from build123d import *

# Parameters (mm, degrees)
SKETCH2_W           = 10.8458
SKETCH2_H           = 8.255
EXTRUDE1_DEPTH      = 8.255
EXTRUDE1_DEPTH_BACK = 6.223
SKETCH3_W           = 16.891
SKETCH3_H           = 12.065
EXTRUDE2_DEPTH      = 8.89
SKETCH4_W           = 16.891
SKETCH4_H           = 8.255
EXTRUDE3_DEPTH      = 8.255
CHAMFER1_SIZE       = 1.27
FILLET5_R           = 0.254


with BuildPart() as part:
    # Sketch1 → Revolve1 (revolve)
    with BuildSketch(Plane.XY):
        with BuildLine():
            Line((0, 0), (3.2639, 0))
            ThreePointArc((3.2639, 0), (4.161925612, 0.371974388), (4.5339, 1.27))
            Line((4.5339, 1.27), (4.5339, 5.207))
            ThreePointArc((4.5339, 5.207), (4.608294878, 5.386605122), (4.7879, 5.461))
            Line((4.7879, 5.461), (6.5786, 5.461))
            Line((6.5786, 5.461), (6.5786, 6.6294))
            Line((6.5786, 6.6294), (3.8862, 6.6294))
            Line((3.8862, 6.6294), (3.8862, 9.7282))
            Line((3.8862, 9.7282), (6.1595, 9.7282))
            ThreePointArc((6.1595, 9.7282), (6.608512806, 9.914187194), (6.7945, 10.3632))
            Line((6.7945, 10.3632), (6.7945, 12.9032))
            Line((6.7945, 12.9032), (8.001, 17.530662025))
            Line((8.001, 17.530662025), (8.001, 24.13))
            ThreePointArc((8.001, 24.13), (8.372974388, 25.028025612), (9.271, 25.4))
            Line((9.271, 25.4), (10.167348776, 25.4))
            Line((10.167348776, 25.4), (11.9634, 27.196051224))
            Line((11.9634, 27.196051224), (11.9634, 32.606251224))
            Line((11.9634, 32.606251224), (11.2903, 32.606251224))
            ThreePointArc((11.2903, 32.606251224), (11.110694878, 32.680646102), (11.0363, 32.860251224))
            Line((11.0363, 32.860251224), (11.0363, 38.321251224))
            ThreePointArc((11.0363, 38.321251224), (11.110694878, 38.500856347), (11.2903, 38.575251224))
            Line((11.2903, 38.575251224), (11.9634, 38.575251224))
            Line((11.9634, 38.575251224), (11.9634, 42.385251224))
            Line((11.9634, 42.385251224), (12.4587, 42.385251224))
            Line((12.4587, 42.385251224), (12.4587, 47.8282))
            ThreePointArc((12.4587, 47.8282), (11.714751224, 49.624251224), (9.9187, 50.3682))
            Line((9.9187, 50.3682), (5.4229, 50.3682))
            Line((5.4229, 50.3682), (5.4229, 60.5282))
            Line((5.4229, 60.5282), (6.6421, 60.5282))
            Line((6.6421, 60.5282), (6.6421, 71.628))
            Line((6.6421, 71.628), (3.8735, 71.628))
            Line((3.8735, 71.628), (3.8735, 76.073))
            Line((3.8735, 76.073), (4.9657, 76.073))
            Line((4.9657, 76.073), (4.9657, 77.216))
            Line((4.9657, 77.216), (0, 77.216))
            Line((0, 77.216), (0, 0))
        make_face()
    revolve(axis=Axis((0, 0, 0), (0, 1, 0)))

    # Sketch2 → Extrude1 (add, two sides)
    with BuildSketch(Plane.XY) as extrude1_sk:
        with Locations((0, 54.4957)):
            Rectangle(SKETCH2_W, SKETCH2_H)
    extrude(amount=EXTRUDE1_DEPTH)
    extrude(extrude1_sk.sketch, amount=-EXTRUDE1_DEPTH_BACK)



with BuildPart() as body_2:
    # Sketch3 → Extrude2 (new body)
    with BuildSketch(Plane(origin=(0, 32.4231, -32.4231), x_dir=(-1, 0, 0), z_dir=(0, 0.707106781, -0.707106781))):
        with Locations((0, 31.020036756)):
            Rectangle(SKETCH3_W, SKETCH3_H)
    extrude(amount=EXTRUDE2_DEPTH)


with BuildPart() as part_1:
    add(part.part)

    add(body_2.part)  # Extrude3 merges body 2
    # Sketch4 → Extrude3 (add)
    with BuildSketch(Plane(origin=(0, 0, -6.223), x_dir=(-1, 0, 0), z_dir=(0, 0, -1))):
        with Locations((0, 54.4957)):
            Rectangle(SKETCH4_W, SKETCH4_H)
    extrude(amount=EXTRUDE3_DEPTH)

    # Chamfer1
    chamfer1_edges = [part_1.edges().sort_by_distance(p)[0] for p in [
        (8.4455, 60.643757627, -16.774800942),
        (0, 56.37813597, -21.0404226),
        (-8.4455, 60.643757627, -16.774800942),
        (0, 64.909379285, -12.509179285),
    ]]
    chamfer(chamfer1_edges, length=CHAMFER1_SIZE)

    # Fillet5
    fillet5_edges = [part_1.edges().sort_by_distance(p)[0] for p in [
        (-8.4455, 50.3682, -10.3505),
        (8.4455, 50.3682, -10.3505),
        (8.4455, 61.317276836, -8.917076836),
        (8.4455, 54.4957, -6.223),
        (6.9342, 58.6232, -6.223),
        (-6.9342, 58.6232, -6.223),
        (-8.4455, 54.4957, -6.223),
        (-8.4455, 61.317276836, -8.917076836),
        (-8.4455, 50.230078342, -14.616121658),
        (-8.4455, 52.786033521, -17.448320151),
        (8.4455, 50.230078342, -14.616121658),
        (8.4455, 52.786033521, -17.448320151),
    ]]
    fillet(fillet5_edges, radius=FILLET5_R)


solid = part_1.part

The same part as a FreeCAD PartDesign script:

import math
import FreeCAD as App
import Part
import Sketcher

V = App.Vector
Q = App.Units.Quantity


def edges_at(feature, points):
    """Names of the edges that pass closest to the given points."""
    edges = feature.Shape.Edges
    near = lambda p: min(range(len(edges)), key=lambda i: edges[i].distToShape(Part.Vertex(*p))[0])
    return sorted({f"Edge{near(p) + 1}" for p in points})


def add_polygon(sketch, points):
    """Adds a closed chain of lines whose ends are joined by coincident constraints."""
    first, n = sketch.GeometryCount, len(points)
    for a, b in zip(points, points[1:] + points[:1]):
        sketch.addGeometry(Part.LineSegment(App.Vector(*a, 0), App.Vector(*b, 0)), False)
    for i in range(n):
        sketch.addConstraint(Sketcher.Constraint("Coincident", first + i, 2, first + (i + 1) % n, 1))

doc = App.newDocument("Part")
body = doc.addObject("PartDesign::Body", "Body")

sketch1 = doc.addObject("Sketcher::SketchObject", "Sketch")
body.addObject(sketch1)
sketch1.AttachmentSupport = (doc.XY_Plane, [""])
sketch1.MapMode = "FlatFace"
sketch1.addGeometry([
    Part.LineSegment(V(0, 0, 0), V(3.26, 0, 0)),
    Part.ArcOfCircle(Part.Circle(V(3.26, 1.27, 0), V(0, 0, 1), 1.27), math.radians(-90), math.radians(0)),
    Part.LineSegment(V(4.53, 1.27, 0), V(4.53, 5.21, 0)),
    Part.ArcOfCircle(Part.Circle(V(4.79, 5.21, 0), V(0, 0, 1), 0.25), math.radians(90), math.radians(180)),
    Part.LineSegment(V(4.79, 5.46, 0), V(6.58, 5.46, 0)),
    Part.LineSegment(V(6.58, 5.46, 0), V(6.58, 6.63, 0)),
    Part.LineSegment(V(6.58, 6.63, 0), V(3.89, 6.63, 0)),
    Part.LineSegment(V(3.89, 6.63, 0), V(3.89, 9.73, 0)),
    Part.LineSegment(V(3.89, 9.73, 0), V(6.16, 9.73, 0)),
    Part.ArcOfCircle(Part.Circle(V(6.16, 10.36, 0), V(0, 0, 1), 0.64), math.radians(-90), math.radians(0)),
    Part.LineSegment(V(6.79, 10.36, 0), V(6.79, 12.9, 0)),
    Part.LineSegment(V(6.79, 12.9, 0), V(8, 17.53, 0)),
    Part.LineSegment(V(8, 17.53, 0), V(8, 24.13, 0)),
    Part.ArcOfCircle(Part.Circle(V(9.27, 24.13, 0), V(0, 0, 1), 1.27), math.radians(90), math.radians(180)),
    Part.LineSegment(V(9.27, 25.4, 0), V(10.17, 25.4, 0)),
    Part.LineSegment(V(10.17, 25.4, 0), V(11.96, 27.2, 0)),
    Part.LineSegment(V(11.96, 27.2, 0), V(11.96, 32.61, 0)),
    Part.LineSegment(V(11.96, 32.61, 0), V(11.29, 32.61, 0)),
    Part.ArcOfCircle(Part.Circle(V(11.29, 32.86, 0), V(0, 0, 1), 0.25), math.radians(-180), math.radians(-90)),
    Part.LineSegment(V(11.04, 32.86, 0), V(11.04, 38.32, 0)),
    Part.ArcOfCircle(Part.Circle(V(11.29, 38.32, 0), V(0, 0, 1), 0.25), math.radians(90), math.radians(180)),
    Part.LineSegment(V(11.29, 38.58, 0), V(11.96, 38.58, 0)),
    Part.LineSegment(V(11.96, 38.58, 0), V(11.96, 42.39, 0)),
    Part.LineSegment(V(11.96, 42.39, 0), V(12.46, 42.39, 0)),
    Part.LineSegment(V(12.46, 42.39, 0), V(12.46, 47.83, 0)),
    Part.ArcOfCircle(Part.Circle(V(9.92, 47.83, 0), V(0, 0, 1), 2.54), math.radians(0), math.radians(90)),
    Part.LineSegment(V(9.92, 50.37, 0), V(5.42, 50.37, 0)),
    Part.LineSegment(V(5.42, 50.37, 0), V(5.42, 60.53, 0)),
    Part.LineSegment(V(5.42, 60.53, 0), V(6.64, 60.53, 0)),
    Part.LineSegment(V(6.64, 60.53, 0), V(6.64, 71.63, 0)),
    Part.LineSegment(V(6.64, 71.63, 0), V(3.87, 71.63, 0)),
    Part.LineSegment(V(3.87, 71.63, 0), V(3.87, 76.07, 0)),
    Part.LineSegment(V(3.87, 76.07, 0), V(4.97, 76.07, 0)),
    Part.LineSegment(V(4.97, 76.07, 0), V(4.97, 77.22, 0)),
    Part.LineSegment(V(4.97, 77.22, 0), V(0, 77.22, 0)),
    Part.LineSegment(V(0, 77.22, 0), V(0, 0, 0)),
], False)
sketch1.addConstraint([
    Sketcher.Constraint("Tangent", 0, 2, 1, 1),
    Sketcher.Constraint("Tangent", 1, 2, 2, 1),
    Sketcher.Constraint("Tangent", 2, 2, 3, 2),
    Sketcher.Constraint("Tangent", 3, 1, 4, 1),
    Sketcher.Constraint("Coincident", 4, 2, 5, 1),
    Sketcher.Constraint("Coincident", 5, 2, 6, 1),
    Sketcher.Constraint("Coincident", 6, 2, 7, 1),
    Sketcher.Constraint("Coincident", 7, 2, 8, 1),
    Sketcher.Constraint("Tangent", 8, 2, 9, 1),
    Sketcher.Constraint("Tangent", 9, 2, 10, 1),
    Sketcher.Constraint("Coincident", 10, 2, 11, 1),
    Sketcher.Constraint("Coincident", 11, 2, 12, 1),
    Sketcher.Constraint("Tangent", 12, 2, 13, 2),
    Sketcher.Constraint("Tangent", 13, 1, 14, 1),
    Sketcher.Constraint("Coincident", 14, 2, 15, 1),
    Sketcher.Constraint("Coincident", 15, 2, 16, 1),
    Sketcher.Constraint("Coincident", 16, 2, 17, 1),
    Sketcher.Constraint("Tangent", 17, 2, 18, 2),
    Sketcher.Constraint("Tangent", 18, 1, 19, 1),
    Sketcher.Constraint("Tangent", 19, 2, 20, 2),
    Sketcher.Constraint("Tangent", 20, 1, 21, 1),
    Sketcher.Constraint("Coincident", 21, 2, 22, 1),
    Sketcher.Constraint("Coincident", 22, 2, 23, 1),
    Sketcher.Constraint("Coincident", 23, 2, 24, 1),
    Sketcher.Constraint("Tangent", 24, 2, 25, 1),
    Sketcher.Constraint("Tangent", 25, 2, 26, 1),
    Sketcher.Constraint("Coincident", 26, 2, 27, 1),
    Sketcher.Constraint("Coincident", 27, 2, 28, 1),
    Sketcher.Constraint("Coincident", 28, 2, 29, 1),
    Sketcher.Constraint("Coincident", 29, 2, 30, 1),
    Sketcher.Constraint("Coincident", 30, 2, 31, 1),
    Sketcher.Constraint("Coincident", 31, 2, 32, 1),
    Sketcher.Constraint("Coincident", 32, 2, 33, 1),
    Sketcher.Constraint("Coincident", 33, 2, 34, 1),
    Sketcher.Constraint("Coincident", 34, 2, 35, 1),
    Sketcher.Constraint("Coincident", 35, 2, 0, 1),
    Sketcher.Constraint("Horizontal", 0),
    Sketcher.Constraint("Vertical", 2),
    Sketcher.Constraint("Horizontal", 4),
    Sketcher.Constraint("Vertical", 5),
    Sketcher.Constraint("Horizontal", 6),
    Sketcher.Constraint("Vertical", 7),
    Sketcher.Constraint("Horizontal", 8),
    Sketcher.Constraint("Vertical", 10),
    Sketcher.Constraint("Vertical", 12),
    Sketcher.Constraint("Horizontal", 14),
    Sketcher.Constraint("Vertical", 16),
    Sketcher.Constraint("Horizontal", 17),
    Sketcher.Constraint("Vertical", 19),
    Sketcher.Constraint("Horizontal", 21),
    Sketcher.Constraint("Vertical", 22),
    Sketcher.Constraint("Horizontal", 23),
    Sketcher.Constraint("Vertical", 24),
    Sketcher.Constraint("Horizontal", 26),
    Sketcher.Constraint("Vertical", 27),
    Sketcher.Constraint("Horizontal", 28),
    Sketcher.Constraint("Vertical", 29),
    Sketcher.Constraint("Horizontal", 30),
    Sketcher.Constraint("Vertical", 31),
    Sketcher.Constraint("Horizontal", 32),
    Sketcher.Constraint("Vertical", 33),
    Sketcher.Constraint("Horizontal", 34),
    Sketcher.Constraint("Vertical", 35),
    Sketcher.Constraint("Coincident", 35, 2, -1, 1),
    Sketcher.Constraint("Equal", 1, 13),
    Sketcher.Constraint("Equal", 3, 18),
    Sketcher.Constraint("Equal", 18, 20),
    Sketcher.Constraint("Vertical", 16, 2, 21, 2),
    Sketcher.Constraint("Radius", 25, Q("0.1 in")),
    Sketcher.Constraint("Radius", 1, Q("0.05 in")),
    Sketcher.Constraint("Radius", 3, Q("0.01 in")),
    Sketcher.Constraint("DistanceY", 10, 1, 10, 2, Q("0.1 in")),
    Sketcher.Constraint("DistanceY", 27, 1, 27, 2, Q("0.4 in")),
    Sketcher.Constraint("DistanceY", -1, 1, 13, 1, Q("1 in")),
    Sketcher.Constraint("Angle", 15, Q("45 deg")),
    Sketcher.Constraint("Radius", 9, Q("0.025 in")),
    Sketcher.Constraint("Distance", 15, Q("0.1 in")),
    Sketcher.Constraint("DistanceY", 22, 1, 22, 2, Q("0.15 in")),
    Sketcher.Constraint("DistanceY", 35, 2, 35, 1, Q("3.04 in")),
    Sketcher.Constraint("DistanceX", 6, 2, 6, 1, Q("0.106 in")),
    Sketcher.Constraint("DistanceX", 26, 2, 26, 1, Q("0.177 in")),
    Sketcher.Constraint("DistanceX", 28, 1, 28, 2, Q("0.048 in")),
    Sketcher.Constraint("DistanceX", 30, 2, 30, 1, Q("0.109 in")),
    Sketcher.Constraint("DistanceX", 32, 1, 32, 2, Q("0.043 in")),
    Sketcher.Constraint("DistanceY", 2, 1, 2, 2, Q("0.155 in")),
    Sketcher.Constraint("DistanceY", 5, 1, 5, 2, Q("0.046 in")),
    Sketcher.Constraint("DistanceY", 7, 1, 7, 2, Q("0.122 in")),
    Sketcher.Constraint("DistanceY", 16, 1, 16, 2, Q("0.213 in")),
    Sketcher.Constraint("DistanceY", 19, 1, 19, 2, Q("0.215 in")),
    Sketcher.Constraint("DistanceY", 29, 1, 29, 2, Q("0.437 in")),
    Sketcher.Constraint("DistanceY", 31, 1, 31, 2, Q("0.175 in")),
    Sketcher.Constraint("DistanceY", 33, 1, 33, 2, Q("0.045 in")),
    Sketcher.Constraint("DistanceX", 0, 1, 0, 2, Q("0.1285 in")),
    Sketcher.Constraint("DistanceX", 4, 1, 4, 2, Q("0.0705 in")),
    Sketcher.Constraint("DistanceX", 8, 1, 8, 2, Q("0.0895 in")),
    Sketcher.Constraint("DistanceX", 17, 2, 17, 1, Q("0.0265 in")),
    Sketcher.Constraint("DistanceX", 23, 1, 23, 2, Q("0.0195 in")),
    Sketcher.Constraint("DistanceX", 34, 2, 34, 1, Q("0.1955 in")),
    Sketcher.Constraint("DistanceX", -1, 1, 13, 3, Q("0.365 in")),
    Sketcher.Constraint("Distance", 11, Q("4.782159 mm")),
])
revolution = doc.addObject("PartDesign::Revolution", "Revolution")
body.addObject(revolution)
revolution.Profile = sketch1
revolution.ReferenceAxis = (sketch1, ["V_Axis"])
revolution.Angle = 360

sketch2 = doc.addObject("Sketcher::SketchObject", "Sketch001")
body.addObject(sketch2)
sketch2.AttachmentSupport = (doc.XY_Plane, [""])
sketch2.MapMode = "FlatFace"
add_polygon(sketch2, [(-5, 59), (-5, 50), (5, 50), (5, 59)])
sketch2.addConstraint([
    Sketcher.Constraint("Vertical", 0),
    Sketcher.Constraint("Horizontal", 1),
    Sketcher.Constraint("Vertical", 2),
    Sketcher.Constraint("Horizontal", 3),
    Sketcher.Constraint("DistanceX", 1, 1, 1, 2, Q("0.427 in")),
    Sketcher.Constraint("DistanceY", 0, 2, 0, 1, Q("0.325 in")),
    Sketcher.Constraint("DistanceY", -1, 1, 0, 2, Q("1.983 in")),
    Sketcher.Constraint("DistanceX", 0, 2, -1, 1, Q("0.2135 in")),
])
pad1 = doc.addObject("PartDesign::Pad", "Pad")
body.addObject(pad1)
pad1.Profile = sketch2
pad1.Type = "TwoLengths"
pad1.Length = Q("0.325 in")
pad1.Length2 = Q("0.245 in")
body2 = doc.addObject("PartDesign::Body", "Body001")

sketch3 = doc.addObject("Sketcher::SketchObject", "Sketch002")
body2.addObject(sketch3)
sketch3.Placement = App.Placement(V(0, 32.4231, -32.4231), App.Rotation(V(-1, 0, 0), V(0, 0.707106781, 0.707106781), V(0, 0.707106781, -0.707106781), "ZXY"))
add_polygon(sketch3, [(-8, 37), (-8, 25), (8, 25), (8, 37)])
sketch3.addConstraint([
    Sketcher.Constraint("Vertical", 0),
    Sketcher.Constraint("Horizontal", 1),
    Sketcher.Constraint("Vertical", 2),
    Sketcher.Constraint("Horizontal", 3),
    Sketcher.Constraint("DistanceX", 1, 1, 1, 2, Q("0.665 in")),
    Sketcher.Constraint("DistanceY", 0, 2, 0, 1, Q("0.475 in")),
    Sketcher.Constraint("DistanceX", 0, 2, -1, 1, Q("0.3325 in")),
    Sketcher.Constraint("DistanceY", -1, 1, 0, 2, Q("24.987537 mm")),
])
pad2 = doc.addObject("PartDesign::Pad", "Pad001")
body2.addObject(pad2)
pad2.Profile = sketch3
pad2.Length = Q("0.35 in")
body.AllowCompound = True
doc.recompute()

boolean = doc.addObject("PartDesign::Boolean", "Boolean")
body.addObject(boolean)
boolean.Type = "Fuse"
boolean.addObjects([body2])

sketch4 = doc.addObject("Sketcher::SketchObject", "Sketch003")
body.addObject(sketch4)
sketch4.AttachmentSupport = (doc.XY_Plane, [""])
sketch4.MapMode = "FlatFace"
sketch4.AttachmentOffset = App.Placement(V(0, 0, -0.245 * 25.4), App.Rotation())
add_polygon(sketch4, [(8, 59), (8, 50), (-8, 50), (-8, 59)])
sketch4.addConstraint([
    Sketcher.Constraint("Vertical", 0),
    Sketcher.Constraint("Horizontal", 1),
    Sketcher.Constraint("Vertical", 2),
    Sketcher.Constraint("Horizontal", 3),
    Sketcher.Constraint("DistanceX", 1, 2, 1, 1, Q("0.665 in")),
    Sketcher.Constraint("DistanceY", 0, 2, 0, 1, Q("0.325 in")),
    Sketcher.Constraint("DistanceY", -1, 1, 0, 2, Q("1.983 in")),
    Sketcher.Constraint("DistanceX", -1, 1, 0, 2, Q("0.3325 in")),
])
pad3 = doc.addObject("PartDesign::Pad", "Pad002")
body.addObject(pad3)
pad3.Profile = sketch4
pad3.Length = Q("0.325 in")
pad3.Reversed = True
doc.recompute()

chamfer = doc.addObject("PartDesign::Chamfer", "Chamfer")
body.addObject(chamfer)
chamfer.Base = (pad3, edges_at(pad3, [
    (8.445, 60.644, -16.775),
    (0, 56.378, -21.04),
    (-8.445, 60.644, -16.775),
    (0, 64.909, -12.509),
]))
chamfer.Size = Q("0.05 in")
doc.recompute()

fillet = doc.addObject("PartDesign::Fillet", "Fillet")
body.addObject(fillet)
fillet.Base = (chamfer, edges_at(chamfer, [
    (-8.445, 50.368, -10.351),
    (8.445, 50.368, -10.351),
    (8.445, 61.317, -8.917),
    (8.445, 54.496, -6.223),
    (6.934, 58.623, -6.223),
    (-6.934, 58.623, -6.223),
    (-8.445, 54.496, -6.223),
    (-8.445, 61.317, -8.917),
    (-8.445, 50.23, -14.616),
    (-8.445, 52.786, -17.448),
    (8.445, 50.23, -14.616),
    (8.445, 52.786, -17.448),
]))
fillet.Radius = Q("0.01 in")

doc.recompute()
